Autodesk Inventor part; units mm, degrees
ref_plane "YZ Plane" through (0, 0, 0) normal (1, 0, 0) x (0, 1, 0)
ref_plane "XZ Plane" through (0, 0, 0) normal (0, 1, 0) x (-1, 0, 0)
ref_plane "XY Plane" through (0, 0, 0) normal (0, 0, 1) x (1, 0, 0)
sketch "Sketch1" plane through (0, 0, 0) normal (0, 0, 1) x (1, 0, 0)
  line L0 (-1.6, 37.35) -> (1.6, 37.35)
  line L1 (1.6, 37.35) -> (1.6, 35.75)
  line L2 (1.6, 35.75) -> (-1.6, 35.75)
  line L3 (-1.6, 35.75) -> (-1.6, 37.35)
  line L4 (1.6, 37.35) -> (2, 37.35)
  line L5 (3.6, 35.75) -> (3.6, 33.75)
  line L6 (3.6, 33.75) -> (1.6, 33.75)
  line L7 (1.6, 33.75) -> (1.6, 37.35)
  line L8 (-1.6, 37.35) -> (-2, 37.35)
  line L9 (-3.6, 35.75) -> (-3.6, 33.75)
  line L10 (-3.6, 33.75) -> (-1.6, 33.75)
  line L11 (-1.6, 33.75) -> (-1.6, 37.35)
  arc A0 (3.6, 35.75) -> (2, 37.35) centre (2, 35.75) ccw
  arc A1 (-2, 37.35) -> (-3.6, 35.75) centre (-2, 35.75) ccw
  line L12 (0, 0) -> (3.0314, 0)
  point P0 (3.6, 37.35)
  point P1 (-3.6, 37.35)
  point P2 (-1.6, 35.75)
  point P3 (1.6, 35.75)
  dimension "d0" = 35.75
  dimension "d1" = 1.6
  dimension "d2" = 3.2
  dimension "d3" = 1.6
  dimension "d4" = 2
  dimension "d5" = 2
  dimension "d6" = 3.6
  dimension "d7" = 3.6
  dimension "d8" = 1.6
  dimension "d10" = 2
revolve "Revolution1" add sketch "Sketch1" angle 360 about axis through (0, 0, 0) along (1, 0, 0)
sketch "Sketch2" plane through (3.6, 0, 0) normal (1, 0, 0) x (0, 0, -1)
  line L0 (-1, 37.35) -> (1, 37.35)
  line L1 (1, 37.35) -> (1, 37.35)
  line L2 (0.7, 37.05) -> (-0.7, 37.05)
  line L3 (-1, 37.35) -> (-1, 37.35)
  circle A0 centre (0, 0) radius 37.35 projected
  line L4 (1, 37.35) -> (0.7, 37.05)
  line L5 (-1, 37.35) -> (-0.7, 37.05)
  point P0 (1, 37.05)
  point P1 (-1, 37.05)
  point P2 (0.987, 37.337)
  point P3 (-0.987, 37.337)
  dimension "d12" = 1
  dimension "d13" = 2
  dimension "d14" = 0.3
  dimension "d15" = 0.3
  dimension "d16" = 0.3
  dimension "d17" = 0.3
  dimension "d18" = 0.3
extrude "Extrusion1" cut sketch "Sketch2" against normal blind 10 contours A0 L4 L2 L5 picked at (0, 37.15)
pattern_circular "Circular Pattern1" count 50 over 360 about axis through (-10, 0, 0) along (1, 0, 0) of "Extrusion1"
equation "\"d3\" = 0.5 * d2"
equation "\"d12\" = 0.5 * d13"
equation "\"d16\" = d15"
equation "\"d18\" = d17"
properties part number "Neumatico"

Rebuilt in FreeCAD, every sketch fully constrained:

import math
import FreeCAD as App
import Part
import Sketcher

doc = App.newDocument("Part")
body = doc.addObject("PartDesign::Body", "Body")

# Sketch on XY plane
sketch1 = body.newObject("Sketcher::SketchObject", "Sketch")
sketch1.AttachmentSupport = (doc.getObject("XY_Plane"), [""])
sketch1.MapMode = "FlatFace"
sketch1.addGeometry([
    Part.ArcOfCircle(Part.Circle(App.Vector(-2, 35.75, 0), App.Vector(0, 0, 1), 1.6), math.radians(90), math.radians(180)),  # 0
    Part.LineSegment(App.Vector(-3.6, 35.75, 0), App.Vector(-3.6, 33.75, 0)),  # 1
    Part.LineSegment(App.Vector(-3.6, 33.75, 0), App.Vector(-1.6, 33.75, 0)),  # 2
    Part.LineSegment(App.Vector(-1.6, 33.75, 0), App.Vector(-1.6, 35.75, 0)),  # 3
    Part.LineSegment(App.Vector(-1.6, 35.75, 0), App.Vector(1.6, 35.75, 0)),  # 4
    Part.LineSegment(App.Vector(1.6, 35.75, 0), App.Vector(1.6, 33.75, 0)),  # 5
    Part.LineSegment(App.Vector(1.6, 33.75, 0), App.Vector(3.6, 33.75, 0)),  # 6
    Part.LineSegment(App.Vector(3.6, 33.75, 0), App.Vector(3.6, 35.75, 0)),  # 7
    Part.ArcOfCircle(Part.Circle(App.Vector(2, 35.75, 0), App.Vector(0, 0, 1), 1.6), math.radians(0), math.radians(90)),  # 8
    Part.LineSegment(App.Vector(2, 37.35, 0), App.Vector(-2, 37.35, 0)),  # 9
], False)
sketch1.addConstraint([
    Sketcher.Constraint("Tangent", 0, 2, 1, 1),
    Sketcher.Constraint("Coincident", 1, 2, 2, 1),
    Sketcher.Constraint("Coincident", 2, 2, 3, 1),
    Sketcher.Constraint("Coincident", 3, 2, 4, 1),
    Sketcher.Constraint("Coincident", 4, 2, 5, 1),
    Sketcher.Constraint("Coincident", 5, 2, 6, 1),
    Sketcher.Constraint("Coincident", 6, 2, 7, 1),
    Sketcher.Constraint("Tangent", 7, 2, 8, 1),
    Sketcher.Constraint("Tangent", 8, 2, 9, 1),
    Sketcher.Constraint("Tangent", 9, 2, 0, 1),
    Sketcher.Constraint("Vertical", 1),
    Sketcher.Constraint("Horizontal", 2),
    Sketcher.Constraint("Vertical", 3),
    Sketcher.Constraint("Horizontal", 4),
    Sketcher.Constraint("Vertical", 5),
    Sketcher.Constraint("Horizontal", 6),
    Sketcher.Constraint("Vertical", 7),
    Sketcher.Constraint("Horizontal", 9),
    Sketcher.Constraint("Equal", 0, 8),
    Sketcher.Constraint("Symmetric", 2, 2, 5, 2, -2),
    Sketcher.Constraint("Horizontal", 0, 2, 3, 2),
    Sketcher.Constraint("Equal", 2, 6),
    Sketcher.Constraint("Equal", 6, 1),
    Sketcher.Constraint("Radius", 0, 1.6),
    Sketcher.Constraint("DistanceX", 2, 1, 2, 2, 2.0),
    Sketcher.Constraint("DistanceX", 4, 1, 4, 2, 3.2),
    Sketcher.Constraint("DistanceY", -1, 1, 0, 3, 35.75),
])
revolution = body.newObject("PartDesign::Revolution", "Revolution")
revolution.Profile = sketch1
revolution.ReferenceAxis = (sketch1, ["H_Axis"])
revolution.Angle = 360

# Sketch on YZ plane
sketch2 = body.newObject("Sketcher::SketchObject", "Sketch001")
sketch2.AttachmentSupport = (doc.getObject("YZ_Plane"), [""])
sketch2.MapMode = "FlatFace"
sketch2.AttachmentOffset = App.Placement(App.Vector(0, 0, 3.6), App.Rotation())
sketch2.addGeometry([
    Part.ArcOfCircle(Part.Circle(App.Vector(0, 0, 0), App.Vector(0, 0, 1), 37.35), math.radians(-1.514193), math.radians(1.514193)),
    Part.LineSegment(App.Vector(37.336958, 0.986958, 0), App.Vector(37.05, 0.7, 0)),
    Part.LineSegment(App.Vector(37.05, 0.7, 0), App.Vector(37.05, -0.7, 0)),
    Part.LineSegment(App.Vector(37.05, -0.7, 0), App.Vector(37.336958, -0.986958, 0)),
], False)
sketch2.addConstraint([
    Sketcher.Constraint("Coincident", 0, 2, 1, 1),
    Sketcher.Constraint("Coincident", 1, 2, 2, 1),
    Sketcher.Constraint("Coincident", 2, 2, 3, 1),
    Sketcher.Constraint("Coincident", 3, 2, 0, 1),
    Sketcher.Constraint("Vertical", 2),
    Sketcher.Constraint("Coincident", 0, 3, -1, 1),
    Sketcher.Constraint("Perpendicular", 1, 3),
    Sketcher.Constraint("Vertical", 0, 2, 3, 2),
    Sketcher.Constraint("Equal", 1, 3),
    Sketcher.Constraint("Radius", 0, 37.35),
    Sketcher.Constraint("DistanceY", 2, 2, 2, 1, 1.4),
    Sketcher.Constraint("DistanceX", -1, 1, 1, 2, 37.05),
])
pocket1 = body.newObject("PartDesign::Pocket", "Pocket")
pocket1.Profile = sketch2
pocket1.Length = 10
doc.recompute()

polarpattern = body.newObject("PartDesign::PolarPattern", "PolarPattern")
polarpattern.Originals = [pocket1]
polarpattern.Axis = (doc.getObject("X_Axis"), [""])
polarpattern.Angle = 360
polarpattern.Occurrences = 50
body.Tip = polarpattern

doc.recompute()
